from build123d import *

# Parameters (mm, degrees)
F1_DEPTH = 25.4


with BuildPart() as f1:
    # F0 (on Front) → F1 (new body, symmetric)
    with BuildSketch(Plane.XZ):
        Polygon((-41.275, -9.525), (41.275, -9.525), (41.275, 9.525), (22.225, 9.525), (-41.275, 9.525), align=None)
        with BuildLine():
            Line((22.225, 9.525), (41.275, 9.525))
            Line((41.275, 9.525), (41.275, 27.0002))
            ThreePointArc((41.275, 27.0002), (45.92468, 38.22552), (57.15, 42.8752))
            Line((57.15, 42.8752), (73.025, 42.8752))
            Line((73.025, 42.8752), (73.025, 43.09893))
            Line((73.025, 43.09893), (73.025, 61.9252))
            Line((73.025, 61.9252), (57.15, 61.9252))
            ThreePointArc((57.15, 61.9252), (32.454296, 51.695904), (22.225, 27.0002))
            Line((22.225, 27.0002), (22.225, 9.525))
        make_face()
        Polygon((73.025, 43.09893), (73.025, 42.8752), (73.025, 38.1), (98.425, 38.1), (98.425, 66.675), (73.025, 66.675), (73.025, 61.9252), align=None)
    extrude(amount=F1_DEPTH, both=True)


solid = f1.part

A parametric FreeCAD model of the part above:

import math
import FreeCAD as App
import Part
import Sketcher
Q = App.Units.Quantity

doc = App.newDocument("Part")
body = doc.addObject("PartDesign::Body", "Body")

sketch1 = body.newObject("Sketcher::SketchObject", "Sketch")
sketch1.AttachmentSupport = (doc.getObject("XZ_Plane"), [""])
sketch1.MapMode = "FlatFace"
sketch1.addGeometry(Part.LineSegment(App.Vector(-41.3, -9.5, 0), App.Vector(41.3, -9.5, 0)), False)
sketch1.addGeometry(Part.LineSegment(App.Vector(41.3, -9.5, 0), App.Vector(41.3, 27, 0)), False)
sketch1.addGeometry(Part.ArcOfCircle(Part.Circle(App.Vector(57.2, 27, 0), App.Vector(0, 0, 1), 15.9), math.radians(90), math.radians(180)), False)
sketch1.addGeometry(Part.LineSegment(App.Vector(57.1, 42.9, 0), App.Vector(73, 42.9, 0)), False)
sketch1.addGeometry(Part.LineSegment(App.Vector(73, 42.9, 0), App.Vector(73, 38.1, 0)), False)
sketch1.addGeometry(Part.LineSegment(App.Vector(73, 38.1, 0), App.Vector(98.4, 38.1, 0)), False)
sketch1.addGeometry(Part.LineSegment(App.Vector(98.4, 38.1, 0), App.Vector(98.4, 66.7, 0)), False)
sketch1.addGeometry(Part.LineSegment(App.Vector(98.4, 66.7, 0), App.Vector(73, 66.7, 0)), False)
sketch1.addGeometry(Part.LineSegment(App.Vector(73, 66.7, 0), App.Vector(73, 61.9, 0)), False)
sketch1.addGeometry(Part.LineSegment(App.Vector(73, 61.9, 0), App.Vector(57.1, 61.9, 0)), False)
sketch1.addGeometry(Part.ArcOfCircle(Part.Circle(App.Vector(57.2, 27, 0), App.Vector(0, 0, 1), 34.9), math.radians(90), math.radians(180)), False)
sketch1.addGeometry(Part.LineSegment(App.Vector(22.2, 27, 0), App.Vector(22.2, 9.5, 0)), False)
sketch1.addGeometry(Part.LineSegment(App.Vector(22.2, 9.5, 0), App.Vector(-41.3, 9.5, 0)), False)
sketch1.addGeometry(Part.LineSegment(App.Vector(-41.3, 9.5, 0), App.Vector(-41.3, -9.5, 0)), False)
sketch1.addConstraint(Sketcher.Constraint("Coincident", 0, 2, 1, 1))
sketch1.addConstraint(Sketcher.Constraint("Tangent", 1, 2, 2, 2))
sketch1.addConstraint(Sketcher.Constraint("Tangent", 2, 1, 3, 1))
sketch1.addConstraint(Sketcher.Constraint("Coincident", 3, 2, 4, 1))
sketch1.addConstraint(Sketcher.Constraint("Coincident", 4, 2, 5, 1))
sketch1.addConstraint(Sketcher.Constraint("Coincident", 5, 2, 6, 1))
sketch1.addConstraint(Sketcher.Constraint("Coincident", 6, 2, 7, 1))
sketch1.addConstraint(Sketcher.Constraint("Coincident", 7, 2, 8, 1))
sketch1.addConstraint(Sketcher.Constraint("Coincident", 8, 2, 9, 1))
sketch1.addConstraint(Sketcher.Constraint("Tangent", 9, 2, 10, 1))
sketch1.addConstraint(Sketcher.Constraint("Tangent", 10, 2, 11, 1))
sketch1.addConstraint(Sketcher.Constraint("Coincident", 11, 2, 12, 1))
sketch1.addConstraint(Sketcher.Constraint("Coincident", 12, 2, 13, 1))
sketch1.addConstraint(Sketcher.Constraint("Coincident", 13, 2, 0, 1))
sketch1.addConstraint(Sketcher.Constraint("Horizontal", 0))
sketch1.addConstraint(Sketcher.Constraint("Vertical", 1))
sketch1.addConstraint(Sketcher.Constraint("Horizontal", 3))
sketch1.addConstraint(Sketcher.Constraint("Vertical", 4))
sketch1.addConstraint(Sketcher.Constraint("Horizontal", 5))
sketch1.addConstraint(Sketcher.Constraint("Vertical", 6))
sketch1.addConstraint(Sketcher.Constraint("Horizontal", 7))
sketch1.addConstraint(Sketcher.Constraint("Vertical", 8))
sketch1.addConstraint(Sketcher.Constraint("Horizontal", 9))
sketch1.addConstraint(Sketcher.Constraint("Vertical", 11))
sketch1.addConstraint(Sketcher.Constraint("Horizontal", 12))
sketch1.addConstraint(Sketcher.Constraint("Vertical", 13))
sketch1.addConstraint(Sketcher.Constraint("Coincident", 10, 3, 2, 3))
sketch1.addConstraint(Sketcher.Constraint("Symmetric", 0, 2, 12, 2, -1, 1))
sketch1.addConstraint(Sketcher.Constraint("Vertical", 4, 2, 7, 2))
sketch1.addConstraint(Sketcher.Constraint("DistanceX", 5, 1, 5, 2, Q("1 in")))
sketch1.addConstraint(Sketcher.Constraint("DistanceX", 12, 2, 12, 1, Q("2.5 in")))
sketch1.addConstraint(Sketcher.Constraint("Radius", 2, Q("0.625 in")))
sketch1.addConstraint(Sketcher.Constraint("Radius", 10, Q("1.375 in")))
sketch1.addConstraint(Sketcher.Constraint("DistanceY", 13, 2, 13, 1, Q("0.75 in")))
sketch1.addConstraint(Sketcher.Constraint("DistanceY", -1, 1, 4, 2, Q("1.5 in")))
sketch1.addConstraint(Sketcher.Constraint("DistanceX", 3, 1, 3, 2, Q("0.625 in")))
sketch1.addConstraint(Sketcher.Constraint("DistanceY", 1, 1, 1, 2, Q("1.438 in")))
sketch1.addConstraint(Sketcher.Constraint("DistanceY", 6, 1, 6, 2, Q("1.125 in")))
pad1 = body.newObject("PartDesign::Pad", "Pad")
pad1.Profile = sketch1
pad1.Length = Q("2 in")
pad1.Midplane = True

doc.recompute()
